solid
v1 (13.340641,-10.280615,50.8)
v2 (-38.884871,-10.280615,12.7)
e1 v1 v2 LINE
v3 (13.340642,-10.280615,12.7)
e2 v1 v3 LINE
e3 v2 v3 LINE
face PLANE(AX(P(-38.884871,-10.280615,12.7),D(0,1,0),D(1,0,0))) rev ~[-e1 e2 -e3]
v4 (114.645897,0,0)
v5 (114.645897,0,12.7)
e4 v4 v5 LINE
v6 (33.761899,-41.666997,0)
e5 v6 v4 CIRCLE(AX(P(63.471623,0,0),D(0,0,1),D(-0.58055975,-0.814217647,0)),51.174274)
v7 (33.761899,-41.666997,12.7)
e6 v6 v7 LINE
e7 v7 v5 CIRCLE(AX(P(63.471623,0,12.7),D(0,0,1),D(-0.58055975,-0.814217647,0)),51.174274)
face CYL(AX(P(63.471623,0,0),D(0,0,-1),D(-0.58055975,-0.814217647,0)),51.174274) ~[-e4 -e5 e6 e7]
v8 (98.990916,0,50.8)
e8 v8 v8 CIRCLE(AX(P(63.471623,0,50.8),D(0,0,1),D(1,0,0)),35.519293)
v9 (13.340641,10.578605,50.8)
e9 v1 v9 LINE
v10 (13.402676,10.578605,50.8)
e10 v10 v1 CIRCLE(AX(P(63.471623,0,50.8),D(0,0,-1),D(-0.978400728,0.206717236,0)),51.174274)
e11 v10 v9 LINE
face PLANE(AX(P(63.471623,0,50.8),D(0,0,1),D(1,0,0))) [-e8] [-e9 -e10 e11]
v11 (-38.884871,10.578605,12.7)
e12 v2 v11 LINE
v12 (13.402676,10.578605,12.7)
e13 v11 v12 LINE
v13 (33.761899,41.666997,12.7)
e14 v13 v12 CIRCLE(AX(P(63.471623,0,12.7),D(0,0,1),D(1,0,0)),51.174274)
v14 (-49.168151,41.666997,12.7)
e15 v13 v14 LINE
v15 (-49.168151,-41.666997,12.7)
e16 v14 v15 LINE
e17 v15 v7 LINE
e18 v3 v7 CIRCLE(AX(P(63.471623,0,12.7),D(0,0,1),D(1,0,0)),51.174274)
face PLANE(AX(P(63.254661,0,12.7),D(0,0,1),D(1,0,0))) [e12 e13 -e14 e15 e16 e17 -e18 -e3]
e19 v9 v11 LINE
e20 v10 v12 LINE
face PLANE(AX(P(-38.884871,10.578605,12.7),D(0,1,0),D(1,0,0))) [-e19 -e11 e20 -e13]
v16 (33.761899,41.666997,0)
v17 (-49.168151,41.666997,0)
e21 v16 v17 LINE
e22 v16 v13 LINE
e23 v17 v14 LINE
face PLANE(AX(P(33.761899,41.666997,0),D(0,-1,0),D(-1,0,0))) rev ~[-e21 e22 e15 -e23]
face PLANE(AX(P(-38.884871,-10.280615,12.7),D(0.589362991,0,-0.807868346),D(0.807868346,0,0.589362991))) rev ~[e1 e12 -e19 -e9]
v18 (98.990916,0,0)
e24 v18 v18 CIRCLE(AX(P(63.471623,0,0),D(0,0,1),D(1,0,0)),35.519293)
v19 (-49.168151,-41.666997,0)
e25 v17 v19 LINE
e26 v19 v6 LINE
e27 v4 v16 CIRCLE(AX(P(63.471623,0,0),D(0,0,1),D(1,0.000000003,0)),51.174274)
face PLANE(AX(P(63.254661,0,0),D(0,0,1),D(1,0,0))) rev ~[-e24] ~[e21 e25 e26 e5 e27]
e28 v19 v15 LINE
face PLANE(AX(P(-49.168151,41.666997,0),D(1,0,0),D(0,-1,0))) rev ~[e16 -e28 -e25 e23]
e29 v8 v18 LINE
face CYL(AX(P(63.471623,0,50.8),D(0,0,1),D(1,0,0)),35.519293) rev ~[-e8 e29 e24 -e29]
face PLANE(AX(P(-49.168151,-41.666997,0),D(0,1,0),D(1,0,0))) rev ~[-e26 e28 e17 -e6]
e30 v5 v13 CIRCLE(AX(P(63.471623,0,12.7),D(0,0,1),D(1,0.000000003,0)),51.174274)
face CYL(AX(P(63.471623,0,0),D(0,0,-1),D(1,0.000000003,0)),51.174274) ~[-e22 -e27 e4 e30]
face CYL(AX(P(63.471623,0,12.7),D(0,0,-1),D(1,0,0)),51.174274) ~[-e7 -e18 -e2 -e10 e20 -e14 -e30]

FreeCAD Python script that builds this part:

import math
import FreeCAD as App
import Part
import Sketcher
Q = App.Units.Quantity

doc = App.newDocument("Part")
body = doc.addObject("PartDesign::Body", "Body")

# Sketch on XY plane
sketch1 = doc.addObject("Sketcher::SketchObject", "Sketch")
body.addObject(sketch1)
sketch1.AttachmentSupport = (doc.XY_Plane, [""])
sketch1.MapMode = "FlatFace"
sketch1.addGeometry(Part.ArcOfCircle(Part.Circle(App.Vector(63, 0, 0), App.Vector(0, 0, 1), 51), math.radians(-125), math.radians(0)), False)
sketch1.addGeometry(Part.ArcOfCircle(Part.Circle(App.Vector(63, 0, 0), App.Vector(0, 0, 1), 51), math.radians(0), math.radians(125)), False)
sketch1.addGeometry(Part.LineSegment(App.Vector(34, 42, 0), App.Vector(-49, 42, 0)), False)
sketch1.addGeometry(Part.LineSegment(App.Vector(-49, 42, 0), App.Vector(-49, -42, 0)), False)
sketch1.addGeometry(Part.LineSegment(App.Vector(-49, -42, 0), App.Vector(34, -42, 0)), False)
sketch1.addGeometry(Part.Circle(App.Vector(63, 0, 0), App.Vector(0, 0, 1), 30), False)
sketch1.addConstraint(Sketcher.Constraint("Tangent", 0, 2, 1, 1))
sketch1.addConstraint(Sketcher.Constraint("Coincident", 1, 2, 2, 1))
sketch1.addConstraint(Sketcher.Constraint("Coincident", 2, 2, 3, 1))
sketch1.addConstraint(Sketcher.Constraint("Coincident", 3, 2, 4, 1))
sketch1.addConstraint(Sketcher.Constraint("Coincident", 4, 2, 0, 1))
sketch1.addConstraint(Sketcher.Constraint("Horizontal", 2))
sketch1.addConstraint(Sketcher.Constraint("Vertical", 3))
sketch1.addConstraint(Sketcher.Constraint("Horizontal", 4))
sketch1.addConstraint(Sketcher.Constraint("Coincident", 5, 3, 0, 3))
sketch1.addConstraint(Sketcher.Constraint("Equal", 0, 1))
sketch1.addConstraint(Sketcher.Constraint("Symmetric", 1, 2, 4, 2, -1))
sketch1.addConstraint(Sketcher.Constraint("PointOnObject", 0, 2, -1))
sketch1.addConstraint(Sketcher.Constraint("Diameter", 5, 59.419448))
sketch1.addConstraint(Sketcher.Constraint("Radius", 0, 51.174274))
sketch1.addConstraint(Sketcher.Constraint("DistanceX", 2, 2, 2, 1, 82.93005))
sketch1.addConstraint(Sketcher.Constraint("DistanceX", -1, 1, 1, 2, 33.761899))
sketch1.addConstraint(Sketcher.Constraint("DistanceX", 1, 2, 0, 2, 80.883998))
pad1 = doc.addObject("PartDesign::Pad", "Pad")
body.addObject(pad1)
pad1.Profile = sketch1
pad1.Length = Q("0.5 in")

# Sketch on XY plane
sketch2 = doc.addObject("Sketcher::SketchObject", "Sketch001")
body.addObject(sketch2)
sketch2.AttachmentSupport = (doc.XY_Plane, [""])
sketch2.MapMode = "FlatFace"
sketch2.AttachmentOffset = App.Placement(App.Vector(0, 0, 0.5 * 25.4), App.Rotation())
sketch2.addGeometry(Part.Circle(App.Vector(63, 0, 0), App.Vector(0, 0, 1), 51), False)
sketch2.addGeometry(Part.Circle(App.Vector(63, 0, 0), App.Vector(0, 0, 1), 36), False)
sketch2.addConstraint(Sketcher.Constraint("Coincident", 1, 3, 0, 3))
sketch2.addConstraint(Sketcher.Constraint("PointOnObject", 0, 3, -1))
sketch2.addConstraint(Sketcher.Constraint("Diameter", 0, 102.348548))
sketch2.addConstraint(Sketcher.Constraint("Diameter", 1, 71.038586))
sketch2.addConstraint(Sketcher.Constraint("DistanceX", -1, 1, 0, 3, 63.471623))
pad2 = doc.addObject("PartDesign::Pad", "Pad001")
body.addObject(pad2)
pad2.Profile = sketch2
pad2.Length = Q("1.5 in")

# Sketch on XY plane
sketch3 = doc.addObject("Sketcher::SketchObject", "Sketch002")
body.addObject(sketch3)
sketch3.AttachmentSupport = (doc.XY_Plane, [""])
sketch3.MapMode = "FlatFace"
sketch3.AttachmentOffset = App.Placement(App.Vector(0, 0, 2 * 25.4), App.Rotation())
sketch3.addGeometry(Part.Circle(App.Vector(63, 0, 0), App.Vector(0, 0, 1), 36), False)
sketch3.addConstraint(Sketcher.Constraint("PointOnObject", 0, 3, -1))
sketch3.addConstraint(Sketcher.Constraint("Diameter", 0, 71.038586))
sketch3.addConstraint(Sketcher.Constraint("DistanceX", -1, 1, 0, 3, 63.471623))
pocket1 = doc.addObject("PartDesign::Pocket", "Pocket")
body.addObject(pocket1)
pocket1.Profile = sketch3
pocket1.Length = Q("3.12 in")

# Sketch on XY plane
sketch4 = doc.addObject("Sketcher::SketchObject", "Sketch003")
body.addObject(sketch4)
sketch4.AttachmentSupport = (doc.XY_Plane, [""])
sketch4.MapMode = "FlatFace"
sketch4.AttachmentOffset = App.Placement(App.Vector(0, 0, 0.5 * 25.4), App.Rotation())
sketch4.addGeometry(Part.LineSegment(App.Vector(-39, 11, 0), App.Vector(-39, -10, 0)), False)
sketch4.addGeometry(Part.LineSegment(App.Vector(-39, -10, 0), App.Vector(17, -10, 0)), False)
sketch4.addGeometry(Part.LineSegment(App.Vector(17, -10, 0), App.Vector(17, 11, 0)), False)
sketch4.addGeometry(Part.LineSegment(App.Vector(17, 11, 0), App.Vector(-39, 11, 0)), False)
sketch4.addConstraint(Sketcher.Constraint("Coincident", 0, 2, 1, 1))
sketch4.addConstraint(Sketcher.Constraint("Coincident", 1, 2, 2, 1))
sketch4.addConstraint(Sketcher.Constraint("Coincident", 2, 2, 3, 1))
sketch4.addConstraint(Sketcher.Constraint("Coincident", 3, 2, 0, 1))
sketch4.addConstraint(Sketcher.Constraint("Vertical", 0))
sketch4.addConstraint(Sketcher.Constraint("Horizontal", 1))
sketch4.addConstraint(Sketcher.Constraint("Vertical", 2))
sketch4.addConstraint(Sketcher.Constraint("Horizontal", 3))
sketch4.addConstraint(Sketcher.Constraint("DistanceX", 1, 1, 1, 2, 55.42592))
sketch4.addConstraint(Sketcher.Constraint("DistanceY", 0, 2, 0, 1, 20.859219))
sketch4.addConstraint(Sketcher.Constraint("DistanceX", 0, 2, -1, 1, 38.884871))
sketch4.addConstraint(Sketcher.Constraint("DistanceY", 0, 2, -1, 1, 10.280615))
pad3 = doc.addObject("PartDesign::Pad", "Pad002")
body.addObject(pad3)
pad3.Profile = sketch4
pad3.Length = Q("1.69 in")

# Sketch on XZ plane
sketch5 = doc.addObject("Sketcher::SketchObject", "Sketch004")
body.addObject(sketch5)
sketch5.AttachmentSupport = (doc.XZ_Plane, [""])
sketch5.MapMode = "FlatFace"
sketch5.AttachmentOffset = App.Placement(App.Vector(0, 0, 10.280615), App.Rotation())
sketch5.addGeometry(Part.LineSegment(App.Vector(-38.9, 70.8, 0), App.Vector(-38.9, 12.7, 0)), False)
sketch5.addGeometry(Part.LineSegment(App.Vector(-38.9, 12.7, 0), App.Vector(13.3, 50.8, 0)), False)
sketch5.addGeometry(Part.LineSegment(App.Vector(13.3, 50.8, 0), App.Vector(16.5, 50.8, 0)), False)
sketch5.addGeometry(Part.LineSegment(App.Vector(16.5, 50.8, 0), App.Vector(16.5, 70.8, 0)), False)
sketch5.addGeometry(Part.LineSegment(App.Vector(16.5, 70.8, 0), App.Vector(-38.9, 70.8, 0)), False)
sketch5.addConstraint(Sketcher.Constraint("Coincident", 0, 2, 1, 1))
sketch5.addConstraint(Sketcher.Constraint("Coincident", 1, 2, 2, 1))
sketch5.addConstraint(Sketcher.Constraint("Coincident", 2, 2, 3, 1))
sketch5.addConstraint(Sketcher.Constraint("Coincident", 3, 2, 4, 1))
sketch5.addConstraint(Sketcher.Constraint("Coincident", 4, 2, 0, 1))
sketch5.addConstraint(Sketcher.Constraint("Vertical", 0))
sketch5.addConstraint(Sketcher.Constraint("Horizontal", 2))
sketch5.addConstraint(Sketcher.Constraint("Vertical", 3))
sketch5.addConstraint(Sketcher.Constraint("Horizontal", 4))
sketch5.addConstraint(Sketcher.Constraint("DistanceY", -1, 1, 1, 2, Q("2 in")))
sketch5.addConstraint(Sketcher.Constraint("DistanceY", -1, 1, 0, 2, Q("0.5 in")))
sketch5.addConstraint(Sketcher.Constraint("DistanceX", 2, 1, 2, 2, 3.200408))
sketch5.addConstraint(Sketcher.Constraint("DistanceX", 4, 2, 4, 1, 55.42592))
sketch5.addConstraint(Sketcher.Constraint("DistanceY", 0, 2, 0, 1, 58.07235))
sketch5.addConstraint(Sketcher.Constraint("DistanceX", 0, 2, -1, 1, 38.884871))
pocket2 = doc.addObject("PartDesign::Pocket", "Pocket001")
body.addObject(pocket2)
pocket2.Profile = sketch5
pocket2.Length = Q("1 in")

doc.recompute()
